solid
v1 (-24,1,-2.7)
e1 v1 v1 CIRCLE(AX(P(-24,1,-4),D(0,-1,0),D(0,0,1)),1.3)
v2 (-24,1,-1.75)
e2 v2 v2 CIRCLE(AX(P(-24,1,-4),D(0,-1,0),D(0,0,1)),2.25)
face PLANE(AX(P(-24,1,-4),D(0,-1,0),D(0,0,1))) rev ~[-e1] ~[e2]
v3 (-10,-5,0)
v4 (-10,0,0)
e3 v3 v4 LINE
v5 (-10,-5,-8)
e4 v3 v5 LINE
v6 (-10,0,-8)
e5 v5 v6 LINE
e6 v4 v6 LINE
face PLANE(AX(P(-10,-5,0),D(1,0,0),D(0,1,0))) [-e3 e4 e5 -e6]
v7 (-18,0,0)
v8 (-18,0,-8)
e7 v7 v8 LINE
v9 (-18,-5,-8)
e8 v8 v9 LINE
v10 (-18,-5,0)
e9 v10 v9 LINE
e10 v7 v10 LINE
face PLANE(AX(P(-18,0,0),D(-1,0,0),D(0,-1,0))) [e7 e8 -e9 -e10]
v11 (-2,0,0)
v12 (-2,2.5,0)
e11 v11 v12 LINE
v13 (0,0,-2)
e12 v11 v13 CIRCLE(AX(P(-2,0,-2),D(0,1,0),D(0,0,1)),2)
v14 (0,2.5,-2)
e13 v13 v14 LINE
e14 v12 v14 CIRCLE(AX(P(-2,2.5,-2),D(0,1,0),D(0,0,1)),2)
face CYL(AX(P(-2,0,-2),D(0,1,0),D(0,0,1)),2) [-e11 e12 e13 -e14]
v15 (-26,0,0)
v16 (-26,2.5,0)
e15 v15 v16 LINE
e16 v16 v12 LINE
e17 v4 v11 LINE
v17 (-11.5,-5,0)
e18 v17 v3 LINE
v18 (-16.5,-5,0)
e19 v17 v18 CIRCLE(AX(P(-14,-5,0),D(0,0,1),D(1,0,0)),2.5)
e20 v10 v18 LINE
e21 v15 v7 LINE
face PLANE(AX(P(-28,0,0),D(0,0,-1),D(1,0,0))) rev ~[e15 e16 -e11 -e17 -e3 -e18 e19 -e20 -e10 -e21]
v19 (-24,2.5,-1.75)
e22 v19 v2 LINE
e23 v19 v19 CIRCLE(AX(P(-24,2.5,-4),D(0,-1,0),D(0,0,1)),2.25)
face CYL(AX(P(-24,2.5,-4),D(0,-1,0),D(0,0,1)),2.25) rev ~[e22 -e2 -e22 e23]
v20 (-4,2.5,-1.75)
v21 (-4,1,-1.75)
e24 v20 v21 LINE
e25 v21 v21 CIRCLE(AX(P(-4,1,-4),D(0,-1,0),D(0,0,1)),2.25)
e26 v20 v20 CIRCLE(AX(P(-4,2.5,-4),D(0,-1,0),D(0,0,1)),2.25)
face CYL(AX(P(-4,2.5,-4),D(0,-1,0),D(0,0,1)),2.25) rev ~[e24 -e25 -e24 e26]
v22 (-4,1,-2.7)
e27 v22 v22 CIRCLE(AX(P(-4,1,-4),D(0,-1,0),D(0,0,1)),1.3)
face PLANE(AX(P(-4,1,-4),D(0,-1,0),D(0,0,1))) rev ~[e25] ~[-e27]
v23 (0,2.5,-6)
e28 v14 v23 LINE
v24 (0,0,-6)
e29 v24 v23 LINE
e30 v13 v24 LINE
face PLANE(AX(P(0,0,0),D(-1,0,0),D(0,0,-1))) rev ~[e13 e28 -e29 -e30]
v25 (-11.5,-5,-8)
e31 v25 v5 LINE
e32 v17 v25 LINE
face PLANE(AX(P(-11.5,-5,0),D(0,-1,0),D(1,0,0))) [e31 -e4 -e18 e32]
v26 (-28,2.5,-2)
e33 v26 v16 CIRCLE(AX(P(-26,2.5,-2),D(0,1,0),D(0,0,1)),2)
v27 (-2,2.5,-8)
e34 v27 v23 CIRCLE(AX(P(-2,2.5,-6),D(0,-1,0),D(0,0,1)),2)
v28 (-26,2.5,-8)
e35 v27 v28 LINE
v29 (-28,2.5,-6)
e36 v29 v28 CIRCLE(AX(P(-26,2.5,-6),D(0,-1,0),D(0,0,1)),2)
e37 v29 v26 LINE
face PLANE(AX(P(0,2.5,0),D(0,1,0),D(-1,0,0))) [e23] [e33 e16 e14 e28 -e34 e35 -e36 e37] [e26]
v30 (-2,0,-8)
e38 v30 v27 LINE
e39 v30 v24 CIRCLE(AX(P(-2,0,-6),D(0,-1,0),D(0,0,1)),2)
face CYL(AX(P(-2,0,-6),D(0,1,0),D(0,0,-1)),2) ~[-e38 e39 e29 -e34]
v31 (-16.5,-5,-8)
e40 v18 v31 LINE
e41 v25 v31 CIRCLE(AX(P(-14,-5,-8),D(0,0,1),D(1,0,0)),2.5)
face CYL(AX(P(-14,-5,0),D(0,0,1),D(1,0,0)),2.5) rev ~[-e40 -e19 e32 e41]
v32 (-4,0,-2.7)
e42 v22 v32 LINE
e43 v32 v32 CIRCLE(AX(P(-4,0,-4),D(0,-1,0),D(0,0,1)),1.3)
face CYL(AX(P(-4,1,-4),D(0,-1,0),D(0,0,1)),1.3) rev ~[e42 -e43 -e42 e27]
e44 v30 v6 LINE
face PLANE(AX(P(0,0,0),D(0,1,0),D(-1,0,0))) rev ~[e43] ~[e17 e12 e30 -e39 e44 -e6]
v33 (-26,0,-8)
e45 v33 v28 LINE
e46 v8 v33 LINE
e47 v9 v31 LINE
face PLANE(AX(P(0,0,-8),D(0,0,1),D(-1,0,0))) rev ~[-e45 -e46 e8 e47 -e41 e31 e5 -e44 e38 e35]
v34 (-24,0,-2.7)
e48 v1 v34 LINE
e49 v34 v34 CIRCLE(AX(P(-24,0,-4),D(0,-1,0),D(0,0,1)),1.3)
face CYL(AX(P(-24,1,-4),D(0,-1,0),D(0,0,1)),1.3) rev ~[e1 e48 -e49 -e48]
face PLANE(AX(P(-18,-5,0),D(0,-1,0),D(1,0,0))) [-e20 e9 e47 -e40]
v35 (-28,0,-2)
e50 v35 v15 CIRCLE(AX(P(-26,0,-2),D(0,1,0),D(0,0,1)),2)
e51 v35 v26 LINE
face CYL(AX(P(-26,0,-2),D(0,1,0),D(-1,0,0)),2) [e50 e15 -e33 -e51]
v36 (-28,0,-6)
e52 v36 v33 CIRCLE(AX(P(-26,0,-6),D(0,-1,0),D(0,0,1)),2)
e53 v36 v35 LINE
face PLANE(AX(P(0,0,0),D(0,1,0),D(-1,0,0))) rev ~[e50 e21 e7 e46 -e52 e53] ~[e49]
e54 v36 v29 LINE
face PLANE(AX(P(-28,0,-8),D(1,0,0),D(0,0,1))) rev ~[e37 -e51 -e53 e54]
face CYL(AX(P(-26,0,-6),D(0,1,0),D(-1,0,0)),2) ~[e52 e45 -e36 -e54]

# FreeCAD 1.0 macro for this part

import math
import FreeCAD as App
import Part
import Sketcher

V = App.Vector


def edges_at(feature, points):
    """Names of the edges that pass closest to the given points."""
    edges = feature.Shape.Edges
    near = lambda p: min(range(len(edges)), key=lambda i: edges[i].distToShape(Part.Vertex(*p))[0])
    return sorted({f"Edge{near(p) + 1}" for p in points})

doc = App.newDocument("Part")
body = doc.addObject("PartDesign::Body", "Body")

# Sketch on XZ plane
sketch1 = body.newObject("Sketcher::SketchObject", "Sketch")
sketch1.AttachmentSupport = (doc.getObject("XZ_Plane"), [""])
sketch1.MapMode = "FlatFace"
sketch1.addGeometry([
    Part.LineSegment(V(-28, -8, 0), V(-28, 0, 0)),
    Part.LineSegment(V(-28, 0, 0), V(0, 0, 0)),
    Part.LineSegment(V(0, 0, 0), V(0, -8, 0)),
    Part.LineSegment(V(0, -8, 0), V(-28, -8, 0)),
], False)
sketch1.addConstraint([
    Sketcher.Constraint("Coincident", 0, 2, 1, 1),
    Sketcher.Constraint("Coincident", 1, 2, 2, 1),
    Sketcher.Constraint("Coincident", 2, 2, 3, 1),
    Sketcher.Constraint("Coincident", 3, 2, 0, 1),
    Sketcher.Constraint("Vertical", 0),
    Sketcher.Constraint("Horizontal", 1),
    Sketcher.Constraint("Vertical", 2),
    Sketcher.Constraint("Horizontal", 3),
    Sketcher.Constraint("Coincident", 1, 2, -1, 1),
    Sketcher.Constraint("DistanceX", 1, 1, 1, 2, 28.0),
    Sketcher.Constraint("DistanceY", 0, 1, 0, 2, 8.0),
])
pad1 = body.newObject("PartDesign::Pad", "Pad")
pad1.Profile = sketch1
pad1.Length = 2.5
pad1.Reversed = True

# Sketch on XZ plane
sketch2 = body.newObject("Sketcher::SketchObject", "Sketch001")
sketch2.AttachmentSupport = (doc.getObject("XZ_Plane"), [""])
sketch2.MapMode = "FlatFace"
sketch2.AttachmentOffset = App.Placement(V(0, 0, -2.5), App.Rotation())
sketch2.addGeometry([
    Part.Circle(V(-24, -4, 0), V(0, 0, 1), 1.3),
    Part.Circle(V(-4, -4, 0), V(0, 0, 1), 1.3),
], False)
sketch2.addConstraint([
    Sketcher.Constraint("Equal", 0, 1),
    Sketcher.Constraint("Horizontal", 0, 3, 1, 3),
    Sketcher.Constraint("Diameter", 0, 2.6),
    Sketcher.Constraint("DistanceX", 0, 3, -1, 1, 24.0),
    Sketcher.Constraint("DistanceY", 0, 3, -1, 1, 4.0),
    Sketcher.Constraint("DistanceX", 1, 3, -1, 1, 4.0),
])
doc.recompute()
hole = body.newObject("PartDesign::Hole", "Hole")
hole.Profile = sketch2
hole.ThreadType = "None"
hole.Diameter = 2.6
hole.DepthType = "ThroughAll"
hole.HoleCutType = "Counterbore"
hole.HoleCutDiameter = 4.5
hole.HoleCutDepth = 1.5
hole.Reversed = True

# Sketch on XY plane
sketch3 = body.newObject("Sketcher::SketchObject", "Sketch002")
sketch3.AttachmentSupport = (doc.getObject("XY_Plane"), [""])
sketch3.MapMode = "FlatFace"
sketch3.addGeometry([
    Part.LineSegment(V(-10, 0, 0), V(-18, 0, 0)),  # 0
    Part.LineSegment(V(-18, 0, 0), V(-18, -5, 0)),  # 1
    Part.LineSegment(V(-18, -5, 0), V(-16.5, -5, 0)),  # 2
    Part.ArcOfCircle(Part.Circle(V(-14, -5, 0), V(0, 0, 1), 2.5), math.radians(0), math.radians(180)),  # 3
    Part.LineSegment(V(-11.5, -5, 0), V(-10, -5, 0)),  # 4
    Part.LineSegment(V(-10, -5, 0), V(-10, 0, 0)),  # 5
], False)
sketch3.addConstraint([
    Sketcher.Constraint("Coincident", 0, 2, 1, 1),
    Sketcher.Constraint("Coincident", 1, 2, 2, 1),
    Sketcher.Constraint("Coincident", 2, 2, 3, 2),
    Sketcher.Constraint("Coincident", 3, 1, 4, 1),
    Sketcher.Constraint("Coincident", 4, 2, 5, 1),
    Sketcher.Constraint("Coincident", 5, 2, 0, 1),
    Sketcher.Constraint("Horizontal", 0),
    Sketcher.Constraint("Vertical", 1),
    Sketcher.Constraint("Horizontal", 2),
    Sketcher.Constraint("Horizontal", 4),
    Sketcher.Constraint("Vertical", 5),
    Sketcher.Constraint("PointOnObject", 0, 2, -1),
    Sketcher.Constraint("Horizontal", 3, 3, 1, 2),
    Sketcher.Constraint("Horizontal", 2, 2, 3, 1),
    Sketcher.Constraint("Equal", 2, 4),
    Sketcher.Constraint("Radius", 3, 2.5),
    Sketcher.Constraint("DistanceX", 0, 2, 0, 1, 8.0),
    Sketcher.Constraint("DistanceY", 1, 2, 1, 1, 5.0),
    Sketcher.Constraint("DistanceX", 3, 3, -1, 1, 14.0),
])
pad2 = body.newObject("PartDesign::Pad", "Pad001")
pad2.Profile = sketch3
pad2.Length = 8
pad2.Reversed = True
doc.recompute()

fillet = body.newObject("PartDesign::Fillet", "Fillet")
fillet.Base = (pad2, edges_at(pad2, [
    (0, 1.25, 0),
    (0, 1.25, -8),
    (-28, 1.25, -8),
    (-28, 1.25, 0),
]))
fillet.Radius = 2

doc.recompute()
